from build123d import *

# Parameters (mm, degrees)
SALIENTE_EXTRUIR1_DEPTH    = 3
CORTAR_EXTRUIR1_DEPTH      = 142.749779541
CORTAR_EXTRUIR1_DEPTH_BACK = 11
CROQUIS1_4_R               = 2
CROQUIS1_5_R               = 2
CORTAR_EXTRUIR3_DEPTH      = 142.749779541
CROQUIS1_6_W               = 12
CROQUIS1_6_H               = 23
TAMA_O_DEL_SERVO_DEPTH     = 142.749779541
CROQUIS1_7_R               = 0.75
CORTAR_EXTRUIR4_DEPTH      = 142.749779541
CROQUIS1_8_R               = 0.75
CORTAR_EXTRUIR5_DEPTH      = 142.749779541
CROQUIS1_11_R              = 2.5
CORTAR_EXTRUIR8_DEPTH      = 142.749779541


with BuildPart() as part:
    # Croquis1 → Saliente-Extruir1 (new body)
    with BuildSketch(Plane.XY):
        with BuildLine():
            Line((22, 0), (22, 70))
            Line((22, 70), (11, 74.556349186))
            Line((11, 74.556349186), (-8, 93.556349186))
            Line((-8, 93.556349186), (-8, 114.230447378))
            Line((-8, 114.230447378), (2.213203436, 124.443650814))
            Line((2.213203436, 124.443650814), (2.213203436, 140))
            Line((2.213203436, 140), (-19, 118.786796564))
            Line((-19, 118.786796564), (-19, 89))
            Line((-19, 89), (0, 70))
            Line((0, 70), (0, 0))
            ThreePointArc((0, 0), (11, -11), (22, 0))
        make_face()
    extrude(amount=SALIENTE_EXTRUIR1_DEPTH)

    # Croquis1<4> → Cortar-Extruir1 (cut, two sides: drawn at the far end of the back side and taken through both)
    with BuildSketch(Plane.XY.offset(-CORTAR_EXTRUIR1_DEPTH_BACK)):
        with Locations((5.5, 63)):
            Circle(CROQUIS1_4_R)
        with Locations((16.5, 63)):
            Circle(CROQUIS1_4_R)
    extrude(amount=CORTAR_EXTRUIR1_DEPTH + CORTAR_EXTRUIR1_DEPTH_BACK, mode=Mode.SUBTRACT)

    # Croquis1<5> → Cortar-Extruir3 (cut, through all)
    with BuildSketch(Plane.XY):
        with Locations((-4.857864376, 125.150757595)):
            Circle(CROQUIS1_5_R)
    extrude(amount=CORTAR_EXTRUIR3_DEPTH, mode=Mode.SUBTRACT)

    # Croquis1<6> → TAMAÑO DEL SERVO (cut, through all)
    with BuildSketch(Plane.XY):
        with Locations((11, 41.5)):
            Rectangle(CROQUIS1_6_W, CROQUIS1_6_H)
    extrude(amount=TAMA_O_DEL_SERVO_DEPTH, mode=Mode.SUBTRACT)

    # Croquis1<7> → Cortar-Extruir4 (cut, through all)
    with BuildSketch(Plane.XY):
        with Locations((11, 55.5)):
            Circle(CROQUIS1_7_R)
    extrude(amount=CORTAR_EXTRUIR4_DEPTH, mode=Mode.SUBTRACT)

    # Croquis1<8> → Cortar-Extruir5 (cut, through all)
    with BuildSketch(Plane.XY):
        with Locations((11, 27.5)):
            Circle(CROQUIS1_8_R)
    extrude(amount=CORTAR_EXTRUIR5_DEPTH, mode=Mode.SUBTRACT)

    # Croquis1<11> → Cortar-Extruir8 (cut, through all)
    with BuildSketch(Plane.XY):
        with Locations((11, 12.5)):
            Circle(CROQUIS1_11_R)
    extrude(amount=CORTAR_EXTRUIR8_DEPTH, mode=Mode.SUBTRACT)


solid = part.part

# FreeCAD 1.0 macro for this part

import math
import FreeCAD as App
import Part
import Sketcher
from FreeCAD import Vector
Q = App.Units.Quantity

doc = App.newDocument("Part")
body = doc.addObject("PartDesign::Body", "Body")

# Sketch on XY plane
sketch1 = body.newObject("Sketcher::SketchObject", "Sketch")
sketch1.AttachmentSupport = (doc.getObject("XY_Plane"), [""])
sketch1.MapMode = "FlatFace"
sketch1.addGeometry(Part.LineSegment(Vector(22, 0, 0), Vector(22, 70, 0)), False)
sketch1.addGeometry(Part.LineSegment(Vector(22, 70, 0), Vector(11, 75, 0)), False)
sketch1.addGeometry(Part.LineSegment(Vector(11, 75, 0), Vector(-8, 94, 0)), False)
sketch1.addGeometry(Part.LineSegment(Vector(-8, 94, 0), Vector(-8, 114, 0)), False)
sketch1.addGeometry(Part.LineSegment(Vector(-8, 114, 0), Vector(2, 124, 0)), False)
sketch1.addGeometry(Part.LineSegment(Vector(2, 124, 0), Vector(2, 140, 0)), False)
sketch1.addGeometry(Part.LineSegment(Vector(2, 140, 0), Vector(-19, 119, 0)), False)
sketch1.addGeometry(Part.LineSegment(Vector(-19, 119, 0), Vector(-19, 89, 0)), False)
sketch1.addGeometry(Part.LineSegment(Vector(-19, 89, 0), Vector(0, 70, 0)), False)
sketch1.addGeometry(Part.LineSegment(Vector(0, 70, 0), Vector(0, 0, 0)), False)
sketch1.addGeometry(Part.ArcOfCircle(Part.Circle(Vector(11, 0, 0), Vector(0, 0, 1), 11), math.radians(180), math.radians(360)), False)
sketch1.addConstraint(Sketcher.Constraint("Coincident", 0, 2, 1, 1))
sketch1.addConstraint(Sketcher.Constraint("Coincident", 1, 2, 2, 1))
sketch1.addConstraint(Sketcher.Constraint("Coincident", 2, 2, 3, 1))
sketch1.addConstraint(Sketcher.Constraint("Coincident", 3, 2, 4, 1))
sketch1.addConstraint(Sketcher.Constraint("Coincident", 4, 2, 5, 1))
sketch1.addConstraint(Sketcher.Constraint("Coincident", 5, 2, 6, 1))
sketch1.addConstraint(Sketcher.Constraint("Coincident", 6, 2, 7, 1))
sketch1.addConstraint(Sketcher.Constraint("Coincident", 7, 2, 8, 1))
sketch1.addConstraint(Sketcher.Constraint("Coincident", 8, 2, 9, 1))
sketch1.addConstraint(Sketcher.Constraint("Tangent", 9, 2, 10, 1))
sketch1.addConstraint(Sketcher.Constraint("Tangent", 10, 2, 0, 1))
sketch1.addConstraint(Sketcher.Constraint("Vertical", 0))
sketch1.addConstraint(Sketcher.Constraint("Vertical", 3))
sketch1.addConstraint(Sketcher.Constraint("Vertical", 5))
sketch1.addConstraint(Sketcher.Constraint("Vertical", 7))
sketch1.addConstraint(Sketcher.Constraint("Vertical", 9))
sketch1.addConstraint(Sketcher.Constraint("Coincident", 9, 2, -1, 1))
sketch1.addConstraint(Sketcher.Constraint("Perpendicular", 2, 4))
sketch1.addConstraint(Sketcher.Constraint("Parallel", 4, 6))
sketch1.addConstraint(Sketcher.Constraint("Perpendicular", 6, 8))
sketch1.addConstraint(Sketcher.Constraint("Horizontal", 0, 2, 8, 2))
sketch1.addConstraint(Sketcher.Constraint("Vertical", 10, 3, 1, 2))
sketch1.addConstraint(Sketcher.Constraint("Equal", 2, 8))
sketch1.addConstraint(Sketcher.Constraint("Radius", 10, Q("11 mm")))
sketch1.addConstraint(Sketcher.Constraint("DistanceY", 0, 1, 0, 2, Q("70 mm")))
sketch1.addConstraint(Sketcher.Constraint("Angle", 2, Q("135 deg")))
sketch1.addConstraint(Sketcher.Constraint("Distance", 6, Q("30 mm")))
sketch1.addConstraint(Sketcher.Constraint("DistanceX", 2, 2, -1, 1, Q("8 mm")))
sketch1.addConstraint(Sketcher.Constraint("DistanceY", -1, 1, 5, 2, Q("140 mm")))
sketch1.addConstraint(Sketcher.Constraint("Angle", 1, Q("157.5 deg")))
sketch1.addConstraint(Sketcher.Constraint("DistanceY", 3, 1, 3, 2, Q("20.674098 mm")))
pad1 = body.newObject("PartDesign::Pad", "Pad")
pad1.Profile = sketch1
pad1.Length = 3

# Sketch on XY plane
sketch2 = body.newObject("Sketcher::SketchObject", "Sketch001")
sketch2.AttachmentSupport = (doc.getObject("XY_Plane"), [""])
sketch2.MapMode = "FlatFace"
sketch2.addGeometry(Part.Circle(Vector(5.5, 63, 0), Vector(0, 0, 1), 2), False)
sketch2.addGeometry(Part.Circle(Vector(16.5, 63, 0), Vector(0, 0, 1), 2), False)
sketch2.addConstraint(Sketcher.Constraint("Equal", 0, 1))
sketch2.addConstraint(Sketcher.Constraint("Horizontal", 0, 3, 1, 3))
sketch2.addConstraint(Sketcher.Constraint("Diameter", 0, Q("4 mm")))
sketch2.addConstraint(Sketcher.Constraint("DistanceY", -1, 1, 0, 3, Q("63 mm")))
sketch2.addConstraint(Sketcher.Constraint("DistanceX", 0, 3, 1, 3, Q("11 mm")))
sketch2.addConstraint(Sketcher.Constraint("DistanceX", -1, 1, 0, 3, Q("5.5 mm")))
pocket1 = body.newObject("PartDesign::Pocket", "Pocket")
pocket1.Profile = sketch2
pocket1.Type = "ThroughAll"
pocket1.Midplane = True

# Sketch on XY plane
sketch3 = body.newObject("Sketcher::SketchObject", "Sketch002")
sketch3.AttachmentSupport = (doc.getObject("XY_Plane"), [""])
sketch3.MapMode = "FlatFace"
sketch3.addGeometry(Part.Circle(Vector(-4.9, 125.2, 0), Vector(0, 0, 1), 2), False)
sketch3.addConstraint(Sketcher.Constraint("Diameter", 0, Q("4 mm")))
sketch3.addConstraint(Sketcher.Constraint("DistanceX", 0, 3, -1, 1, Q("4.857864 mm")))
sketch3.addConstraint(Sketcher.Constraint("DistanceY", -1, 1, 0, 3, Q("125.150758 mm")))
pocket2 = body.newObject("PartDesign::Pocket", "Pocket001")
pocket2.Profile = sketch3
pocket2.Type = "ThroughAll"
pocket2.Reversed = True

# Sketch on XY plane
sketch4 = body.newObject("Sketcher::SketchObject", "Sketch003")
sketch4.AttachmentSupport = (doc.getObject("XY_Plane"), [""])
sketch4.MapMode = "FlatFace"
sketch4.addGeometry(Part.LineSegment(Vector(5, 53, 0), Vector(5, 30, 0)), False)
sketch4.addGeometry(Part.LineSegment(Vector(5, 30, 0), Vector(17, 30, 0)), False)
sketch4.addGeometry(Part.LineSegment(Vector(17, 30, 0), Vector(17, 53, 0)), False)
sketch4.addGeometry(Part.LineSegment(Vector(17, 53, 0), Vector(5, 53, 0)), False)
sketch4.addConstraint(Sketcher.Constraint("Coincident", 0, 2, 1, 1))
sketch4.addConstraint(Sketcher.Constraint("Coincident", 1, 2, 2, 1))
sketch4.addConstraint(Sketcher.Constraint("Coincident", 2, 2, 3, 1))
sketch4.addConstraint(Sketcher.Constraint("Coincident", 3, 2, 0, 1))
sketch4.addConstraint(Sketcher.Constraint("Vertical", 0))
sketch4.addConstraint(Sketcher.Constraint("Horizontal", 1))
sketch4.addConstraint(Sketcher.Constraint("Vertical", 2))
sketch4.addConstraint(Sketcher.Constraint("Horizontal", 3))
sketch4.addConstraint(Sketcher.Constraint("DistanceX", 1, 1, 1, 2, Q("12 mm")))
sketch4.addConstraint(Sketcher.Constraint("DistanceY", 0, 2, 0, 1, Q("23 mm")))
sketch4.addConstraint(Sketcher.Constraint("DistanceX", -1, 1, 0, 2, Q("5 mm")))
sketch4.addConstraint(Sketcher.Constraint("DistanceY", -1, 1, 0, 2, Q("30 mm")))
pocket3 = body.newObject("PartDesign::Pocket", "Pocket002")
pocket3.Profile = sketch4
pocket3.Type = "ThroughAll"
pocket3.Reversed = True

# Sketch on XY plane
sketch5 = body.newObject("Sketcher::SketchObject", "Sketch004")
sketch5.AttachmentSupport = (doc.getObject("XY_Plane"), [""])
sketch5.MapMode = "FlatFace"
sketch5.addGeometry(Part.Circle(Vector(11, 55.5, 0), Vector(0, 0, 1), 0.8), False)
sketch5.addConstraint(Sketcher.Constraint("Diameter", 0, Q("1.5 mm")))
sketch5.addConstraint(Sketcher.Constraint("DistanceX", -1, 1, 0, 3, Q("11 mm")))
sketch5.addConstraint(Sketcher.Constraint("DistanceY", -1, 1, 0, 3, Q("55.5 mm")))
pocket4 = body.newObject("PartDesign::Pocket", "Pocket003")
pocket4.Profile = sketch5
pocket4.Type = "ThroughAll"
pocket4.Reversed = True

# Sketch on XY plane
sketch6 = body.newObject("Sketcher::SketchObject", "Sketch005")
sketch6.AttachmentSupport = (doc.getObject("XY_Plane"), [""])
sketch6.MapMode = "FlatFace"
sketch6.addGeometry(Part.Circle(Vector(11, 27.5, 0), Vector(0, 0, 1), 0.8), False)
sketch6.addConstraint(Sketcher.Constraint("Diameter", 0, Q("1.5 mm")))
sketch6.addConstraint(Sketcher.Constraint("DistanceX", -1, 1, 0, 3, Q("11 mm")))
sketch6.addConstraint(Sketcher.Constraint("DistanceY", -1, 1, 0, 3, Q("27.5 mm")))
pocket5 = body.newObject("PartDesign::Pocket", "Pocket004")
pocket5.Profile = sketch6
pocket5.Type = "ThroughAll"
pocket5.Reversed = True

# Sketch on XY plane
sketch7 = body.newObject("Sketcher::SketchObject", "Sketch006")
sketch7.AttachmentSupport = (doc.getObject("XY_Plane"), [""])
sketch7.MapMode = "FlatFace"
sketch7.addGeometry(Part.Circle(Vector(11, 12.5, 0), Vector(0, 0, 1), 2.5), False)
sketch7.addConstraint(Sketcher.Constraint("Diameter", 0, Q("5 mm")))
sketch7.addConstraint(Sketcher.Constraint("DistanceX", -1, 1, 0, 3, Q("11 mm")))
sketch7.addConstraint(Sketcher.Constraint("DistanceY", -1, 1, 0, 3, Q("12.5 mm")))
pocket6 = body.newObject("PartDesign::Pocket", "Pocket005")
pocket6.Profile = sketch7
pocket6.Type = "ThroughAll"
pocket6.Reversed = True

doc.recompute()
